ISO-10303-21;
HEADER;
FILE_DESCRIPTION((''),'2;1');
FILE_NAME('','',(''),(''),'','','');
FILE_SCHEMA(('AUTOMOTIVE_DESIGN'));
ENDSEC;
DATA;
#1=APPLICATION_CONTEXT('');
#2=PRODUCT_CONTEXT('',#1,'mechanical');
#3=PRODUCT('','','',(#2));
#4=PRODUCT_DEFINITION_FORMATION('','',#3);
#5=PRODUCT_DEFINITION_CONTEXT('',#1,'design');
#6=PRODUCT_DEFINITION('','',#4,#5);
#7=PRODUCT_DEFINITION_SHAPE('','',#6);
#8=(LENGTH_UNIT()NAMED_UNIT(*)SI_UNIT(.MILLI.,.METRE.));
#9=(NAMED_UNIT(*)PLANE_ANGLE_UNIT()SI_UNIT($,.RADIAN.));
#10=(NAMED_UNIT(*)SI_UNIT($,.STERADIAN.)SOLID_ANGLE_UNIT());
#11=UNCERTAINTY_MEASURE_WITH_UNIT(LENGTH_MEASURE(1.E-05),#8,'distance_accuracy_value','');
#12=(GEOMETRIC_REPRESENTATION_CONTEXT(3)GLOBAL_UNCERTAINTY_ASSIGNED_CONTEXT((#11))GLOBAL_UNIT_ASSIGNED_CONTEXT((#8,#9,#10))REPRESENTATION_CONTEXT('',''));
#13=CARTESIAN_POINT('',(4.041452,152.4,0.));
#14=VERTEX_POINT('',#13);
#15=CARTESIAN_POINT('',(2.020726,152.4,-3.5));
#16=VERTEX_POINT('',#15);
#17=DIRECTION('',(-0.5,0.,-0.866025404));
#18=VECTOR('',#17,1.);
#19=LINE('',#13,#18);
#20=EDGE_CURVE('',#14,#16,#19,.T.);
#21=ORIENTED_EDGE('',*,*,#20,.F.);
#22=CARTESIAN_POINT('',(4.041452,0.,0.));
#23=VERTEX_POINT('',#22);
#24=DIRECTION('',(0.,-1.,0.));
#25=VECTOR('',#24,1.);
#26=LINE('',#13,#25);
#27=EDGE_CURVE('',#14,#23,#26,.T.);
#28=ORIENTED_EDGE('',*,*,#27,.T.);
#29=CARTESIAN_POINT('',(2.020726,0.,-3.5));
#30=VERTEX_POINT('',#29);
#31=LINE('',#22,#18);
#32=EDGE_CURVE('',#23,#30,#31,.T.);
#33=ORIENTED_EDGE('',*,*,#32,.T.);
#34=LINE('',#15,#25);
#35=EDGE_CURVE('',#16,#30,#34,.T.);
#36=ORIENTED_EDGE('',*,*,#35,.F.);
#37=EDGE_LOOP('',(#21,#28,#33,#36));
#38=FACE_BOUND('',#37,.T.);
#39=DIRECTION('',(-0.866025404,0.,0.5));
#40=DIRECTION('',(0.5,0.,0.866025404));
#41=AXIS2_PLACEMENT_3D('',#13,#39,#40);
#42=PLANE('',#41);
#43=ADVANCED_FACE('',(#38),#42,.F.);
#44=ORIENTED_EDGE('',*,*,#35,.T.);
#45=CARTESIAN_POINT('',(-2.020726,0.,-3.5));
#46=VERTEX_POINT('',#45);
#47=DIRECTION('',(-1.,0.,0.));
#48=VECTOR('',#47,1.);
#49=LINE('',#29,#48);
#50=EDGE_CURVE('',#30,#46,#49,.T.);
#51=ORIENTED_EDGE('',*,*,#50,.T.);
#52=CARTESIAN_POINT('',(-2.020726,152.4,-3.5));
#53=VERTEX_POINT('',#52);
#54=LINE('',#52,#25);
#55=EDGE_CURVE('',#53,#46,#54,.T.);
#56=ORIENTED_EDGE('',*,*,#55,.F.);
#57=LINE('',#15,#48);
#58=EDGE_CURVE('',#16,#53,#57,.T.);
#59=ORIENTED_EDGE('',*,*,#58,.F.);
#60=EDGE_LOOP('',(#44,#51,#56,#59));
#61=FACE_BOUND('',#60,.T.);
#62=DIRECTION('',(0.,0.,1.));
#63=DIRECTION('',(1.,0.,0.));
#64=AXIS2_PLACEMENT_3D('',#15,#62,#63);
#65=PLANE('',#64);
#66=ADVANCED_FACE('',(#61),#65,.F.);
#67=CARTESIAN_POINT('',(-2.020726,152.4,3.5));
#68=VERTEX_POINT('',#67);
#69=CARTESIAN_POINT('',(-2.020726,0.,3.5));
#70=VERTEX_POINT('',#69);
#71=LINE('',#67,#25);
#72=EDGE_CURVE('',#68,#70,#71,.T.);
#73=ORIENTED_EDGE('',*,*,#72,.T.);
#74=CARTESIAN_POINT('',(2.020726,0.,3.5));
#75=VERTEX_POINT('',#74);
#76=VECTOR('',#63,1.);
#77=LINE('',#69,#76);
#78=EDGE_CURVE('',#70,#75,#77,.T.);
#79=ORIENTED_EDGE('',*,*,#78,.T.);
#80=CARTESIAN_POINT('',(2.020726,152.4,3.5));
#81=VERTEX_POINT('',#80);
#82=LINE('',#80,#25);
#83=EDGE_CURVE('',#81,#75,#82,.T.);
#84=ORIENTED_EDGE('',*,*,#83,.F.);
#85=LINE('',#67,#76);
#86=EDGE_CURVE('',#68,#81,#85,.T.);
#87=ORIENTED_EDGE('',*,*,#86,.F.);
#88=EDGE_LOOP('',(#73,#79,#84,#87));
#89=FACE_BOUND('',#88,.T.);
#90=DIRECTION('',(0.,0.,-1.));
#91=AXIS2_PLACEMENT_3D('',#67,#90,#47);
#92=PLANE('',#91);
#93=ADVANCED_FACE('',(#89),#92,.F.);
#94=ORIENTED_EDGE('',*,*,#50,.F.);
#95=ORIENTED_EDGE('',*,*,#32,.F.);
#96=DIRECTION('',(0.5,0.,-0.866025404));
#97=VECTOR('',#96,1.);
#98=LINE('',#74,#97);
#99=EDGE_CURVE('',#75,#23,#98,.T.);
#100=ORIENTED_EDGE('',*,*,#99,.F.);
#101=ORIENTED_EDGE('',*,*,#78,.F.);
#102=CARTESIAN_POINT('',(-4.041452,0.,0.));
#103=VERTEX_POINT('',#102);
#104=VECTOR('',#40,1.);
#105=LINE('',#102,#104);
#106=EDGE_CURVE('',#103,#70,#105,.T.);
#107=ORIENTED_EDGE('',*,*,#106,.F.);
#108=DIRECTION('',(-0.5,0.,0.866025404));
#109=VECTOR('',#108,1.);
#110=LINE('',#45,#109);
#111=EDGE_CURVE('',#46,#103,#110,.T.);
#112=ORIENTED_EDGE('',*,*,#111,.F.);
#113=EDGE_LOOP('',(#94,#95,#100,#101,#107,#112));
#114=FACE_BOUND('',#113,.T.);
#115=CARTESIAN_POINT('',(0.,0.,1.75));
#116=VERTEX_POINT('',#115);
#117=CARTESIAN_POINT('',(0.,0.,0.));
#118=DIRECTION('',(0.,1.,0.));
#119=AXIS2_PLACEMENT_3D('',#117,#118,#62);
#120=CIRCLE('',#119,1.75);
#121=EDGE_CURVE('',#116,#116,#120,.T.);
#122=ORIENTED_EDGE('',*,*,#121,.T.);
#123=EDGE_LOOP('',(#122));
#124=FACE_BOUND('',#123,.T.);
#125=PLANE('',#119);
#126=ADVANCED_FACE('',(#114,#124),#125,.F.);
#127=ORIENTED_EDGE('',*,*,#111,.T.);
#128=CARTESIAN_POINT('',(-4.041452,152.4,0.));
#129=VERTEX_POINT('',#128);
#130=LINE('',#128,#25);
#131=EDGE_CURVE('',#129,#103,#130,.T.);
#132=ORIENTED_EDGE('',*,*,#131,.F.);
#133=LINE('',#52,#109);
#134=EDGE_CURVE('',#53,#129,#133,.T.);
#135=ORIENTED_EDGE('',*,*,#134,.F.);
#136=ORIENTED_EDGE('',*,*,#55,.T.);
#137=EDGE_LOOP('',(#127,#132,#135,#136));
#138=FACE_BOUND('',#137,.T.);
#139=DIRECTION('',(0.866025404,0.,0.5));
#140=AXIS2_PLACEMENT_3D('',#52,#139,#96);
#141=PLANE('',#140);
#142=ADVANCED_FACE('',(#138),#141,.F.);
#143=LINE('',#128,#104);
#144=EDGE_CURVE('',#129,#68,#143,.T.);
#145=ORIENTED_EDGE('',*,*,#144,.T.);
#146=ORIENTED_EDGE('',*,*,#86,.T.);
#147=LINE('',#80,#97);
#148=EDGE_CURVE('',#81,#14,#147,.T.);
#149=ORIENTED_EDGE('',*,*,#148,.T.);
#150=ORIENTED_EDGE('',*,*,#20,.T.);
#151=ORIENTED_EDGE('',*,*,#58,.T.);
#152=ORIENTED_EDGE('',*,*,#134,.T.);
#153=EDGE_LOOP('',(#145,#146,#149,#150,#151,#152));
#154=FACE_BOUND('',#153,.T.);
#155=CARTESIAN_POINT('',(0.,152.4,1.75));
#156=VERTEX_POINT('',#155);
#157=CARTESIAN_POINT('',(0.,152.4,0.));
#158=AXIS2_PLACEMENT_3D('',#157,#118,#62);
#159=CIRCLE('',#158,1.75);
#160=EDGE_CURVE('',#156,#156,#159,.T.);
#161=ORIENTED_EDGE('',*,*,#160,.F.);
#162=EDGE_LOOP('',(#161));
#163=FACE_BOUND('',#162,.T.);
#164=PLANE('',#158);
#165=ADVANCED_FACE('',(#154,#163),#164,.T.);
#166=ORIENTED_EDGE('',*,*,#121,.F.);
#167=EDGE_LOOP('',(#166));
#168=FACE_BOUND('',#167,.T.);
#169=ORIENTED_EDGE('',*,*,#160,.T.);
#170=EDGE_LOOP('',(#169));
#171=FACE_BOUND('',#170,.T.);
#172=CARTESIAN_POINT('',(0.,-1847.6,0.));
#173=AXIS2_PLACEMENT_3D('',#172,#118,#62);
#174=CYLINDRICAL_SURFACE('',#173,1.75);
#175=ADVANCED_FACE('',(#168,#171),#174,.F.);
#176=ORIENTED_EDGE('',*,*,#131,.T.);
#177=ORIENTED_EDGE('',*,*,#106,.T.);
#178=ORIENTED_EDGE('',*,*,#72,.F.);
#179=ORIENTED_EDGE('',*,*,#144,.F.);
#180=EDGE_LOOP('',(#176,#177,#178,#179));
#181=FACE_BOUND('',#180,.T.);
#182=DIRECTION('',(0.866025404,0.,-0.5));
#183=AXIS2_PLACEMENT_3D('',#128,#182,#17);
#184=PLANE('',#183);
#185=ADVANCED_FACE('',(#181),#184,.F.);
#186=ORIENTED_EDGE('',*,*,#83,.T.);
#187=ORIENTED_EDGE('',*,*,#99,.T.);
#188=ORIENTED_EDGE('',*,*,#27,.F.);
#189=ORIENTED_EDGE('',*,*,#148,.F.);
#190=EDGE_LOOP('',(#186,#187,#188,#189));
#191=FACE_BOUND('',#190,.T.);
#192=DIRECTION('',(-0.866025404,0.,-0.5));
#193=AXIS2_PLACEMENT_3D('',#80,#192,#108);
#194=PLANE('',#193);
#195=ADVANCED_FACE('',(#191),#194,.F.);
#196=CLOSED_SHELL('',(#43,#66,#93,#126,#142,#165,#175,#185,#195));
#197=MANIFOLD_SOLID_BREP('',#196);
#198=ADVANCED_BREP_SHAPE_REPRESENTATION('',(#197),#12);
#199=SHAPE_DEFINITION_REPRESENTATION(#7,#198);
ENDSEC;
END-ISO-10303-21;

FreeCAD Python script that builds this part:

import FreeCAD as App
import Part
import Sketcher
Q = App.Units.Quantity

doc = App.newDocument("Part")
body = doc.addObject("PartDesign::Body", "Body")

# Sketch on XZ plane
sketch1 = doc.addObject("Sketcher::SketchObject", "Sketch")
body.addObject(sketch1)
sketch1.AttachmentSupport = (doc.XZ_Plane, [""])
sketch1.MapMode = "FlatFace"
sketch1.addGeometry([
    Part.LineSegment(App.Vector(-2, -3.5, 0), App.Vector(-4, 0, 0)),  # 0
    Part.LineSegment(App.Vector(-4, 0, 0), App.Vector(-2, 3.5, 0)),  # 1
    Part.LineSegment(App.Vector(-2, 3.5, 0), App.Vector(2, 3.5, 0)),  # 2
    Part.LineSegment(App.Vector(2, 3.5, 0), App.Vector(4, 0, 0)),  # 3
    Part.LineSegment(App.Vector(4, 0, 0), App.Vector(2, -3.5, 0)),  # 4
    Part.LineSegment(App.Vector(2, -3.5, 0), App.Vector(-2, -3.5, 0)),  # 5
], False)
sketch1.addConstraint([
    Sketcher.Constraint("Coincident", 0, 2, 1, 1),
    Sketcher.Constraint("Coincident", 1, 2, 2, 1),
    Sketcher.Constraint("Coincident", 2, 2, 3, 1),
    Sketcher.Constraint("Coincident", 3, 2, 4, 1),
    Sketcher.Constraint("Coincident", 4, 2, 5, 1),
    Sketcher.Constraint("Coincident", 5, 2, 0, 1),
    Sketcher.Constraint("Horizontal", 2),
    Sketcher.Constraint("Horizontal", 5),
    Sketcher.Constraint("Symmetric", 0, 2, 3, 2, -1, 1),
    Sketcher.Constraint("Symmetric", 1, 2, 4, 2, -1, 1),
    Sketcher.Constraint("PointOnObject", 0, 2, -1),
    Sketcher.Constraint("Parallel", 0, 3),
    Sketcher.Constraint("Vertical", 2, 2, 4, 2),
    Sketcher.Constraint("Angle", 0, Q("120 deg")),
    Sketcher.Constraint("DistanceY", 4, 2, 2, 2, Q("7 mm")),
    Sketcher.Constraint("DistanceX", 2, 1, 2, 2, Q("4.041452 mm")),
])
pad1 = doc.addObject("PartDesign::Pad", "Pad")
body.addObject(pad1)
pad1.Profile = sketch1
pad1.Length = 152.4
pad1.Reversed = True

# Sketch on XZ plane
sketch2 = doc.addObject("Sketcher::SketchObject", "Sketch001")
body.addObject(sketch2)
sketch2.AttachmentSupport = (doc.XZ_Plane, [""])
sketch2.MapMode = "FlatFace"
sketch2.AttachmentOffset = App.Placement(App.Vector(0, 0, -152.4), App.Rotation())
sketch2.addGeometry(Part.Circle(App.Vector(0, 0, 0), App.Vector(0, 0, 1), 1.8), False)
sketch2.addConstraint([
    Sketcher.Constraint("Coincident", 0, 3, -1, 1),
    Sketcher.Constraint("Diameter", 0, Q("3.5 mm")),
])
pocket1 = doc.addObject("PartDesign::Pocket", "Pocket")
body.addObject(pocket1)
pocket1.Profile = sketch2
pocket1.Length = 2000
pocket1.Reversed = True

doc.recompute()
